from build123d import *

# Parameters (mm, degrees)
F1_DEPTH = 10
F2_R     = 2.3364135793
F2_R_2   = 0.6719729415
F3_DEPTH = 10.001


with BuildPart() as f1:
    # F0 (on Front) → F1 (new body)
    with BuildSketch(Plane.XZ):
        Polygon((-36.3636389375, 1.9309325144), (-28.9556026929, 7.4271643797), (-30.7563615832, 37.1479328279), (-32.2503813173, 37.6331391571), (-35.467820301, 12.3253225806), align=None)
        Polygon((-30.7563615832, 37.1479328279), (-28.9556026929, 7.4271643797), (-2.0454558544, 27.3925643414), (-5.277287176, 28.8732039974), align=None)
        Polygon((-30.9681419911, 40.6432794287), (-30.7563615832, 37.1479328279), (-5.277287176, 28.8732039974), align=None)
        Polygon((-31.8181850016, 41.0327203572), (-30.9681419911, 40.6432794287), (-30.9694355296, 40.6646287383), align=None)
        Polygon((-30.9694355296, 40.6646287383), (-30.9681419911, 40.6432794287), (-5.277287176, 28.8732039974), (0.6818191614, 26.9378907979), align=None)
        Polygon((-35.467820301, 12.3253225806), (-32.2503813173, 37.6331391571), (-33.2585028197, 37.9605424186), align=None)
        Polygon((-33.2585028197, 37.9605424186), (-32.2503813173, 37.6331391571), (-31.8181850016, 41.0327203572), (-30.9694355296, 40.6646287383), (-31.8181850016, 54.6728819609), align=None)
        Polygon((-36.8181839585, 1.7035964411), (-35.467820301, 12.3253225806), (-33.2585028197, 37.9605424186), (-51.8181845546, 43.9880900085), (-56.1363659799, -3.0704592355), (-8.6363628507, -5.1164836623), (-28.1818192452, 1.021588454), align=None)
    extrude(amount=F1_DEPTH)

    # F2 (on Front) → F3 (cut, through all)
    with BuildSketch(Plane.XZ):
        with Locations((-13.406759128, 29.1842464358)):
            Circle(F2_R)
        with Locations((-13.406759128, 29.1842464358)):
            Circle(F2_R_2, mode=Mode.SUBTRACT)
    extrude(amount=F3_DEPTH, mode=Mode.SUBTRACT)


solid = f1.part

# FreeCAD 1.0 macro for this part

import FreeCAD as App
import Part
import Sketcher

V = App.Vector

doc = App.newDocument("Part")
body = doc.addObject("PartDesign::Body", "Body")
body.AllowCompound = True

sketch1 = body.newObject("Sketcher::SketchObject", "Sketch")
sketch1.AttachmentSupport = (doc.getObject("XZ_Plane"), [""])
sketch1.MapMode = "FlatFace"
sketch1.addGeometry([
    Part.LineSegment(V(-36.4, 1.9, 0), V(-29, 7.4, 0)),
    Part.LineSegment(V(-29, 7.4, 0), V(-2, 27.4, 0)),
    Part.LineSegment(V(-2, 27.4, 0), V(-5.3, 28.9, 0)),
    Part.LineSegment(V(-5.3, 28.9, 0), V(0.7, 26.9, 0)),
    Part.LineSegment(V(0.7, 26.9, 0), V(-31, 40.7, 0)),
    Part.LineSegment(V(-31, 40.7, 0), V(-31.8, 54.7, 0)),
    Part.LineSegment(V(-31.8, 54.7, 0), V(-33.3, 38, 0)),
    Part.LineSegment(V(-33.3, 38, 0), V(-51.8, 44, 0)),
    Part.LineSegment(V(-51.8, 44, 0), V(-56.1, -3.1, 0)),
    Part.LineSegment(V(-56.1, -3.1, 0), V(-8.6, -5.1, 0)),
    Part.LineSegment(V(-8.6, -5.1, 0), V(-28.2, 1, 0)),
    Part.LineSegment(V(-28.2, 1, 0), V(-36.8, 1.7, 0)),
    Part.LineSegment(V(-36.8, 1.7, 0), V(-35.5, 12.3, 0)),
    Part.LineSegment(V(-35.5, 12.3, 0), V(-36.4, 1.9, 0)),
    Part.LineSegment(V(-31.8, 41, 0), V(-31, 40.6, 0)),
    Part.LineSegment(V(-31, 40.6, 0), V(-30.8, 37.1, 0)),
    Part.LineSegment(V(-30.8, 37.1, 0), V(-32.3, 37.6, 0)),
    Part.LineSegment(V(-32.3, 37.6, 0), V(-31.8, 41, 0)),
], False)
sketch1.addConstraint([
    Sketcher.Constraint("Coincident", 0, 2, 1, 1),
    Sketcher.Constraint("Coincident", 1, 2, 2, 1),
    Sketcher.Constraint("Coincident", 2, 2, 3, 1),
    Sketcher.Constraint("Coincident", 3, 2, 4, 1),
    Sketcher.Constraint("Coincident", 4, 2, 5, 1),
    Sketcher.Constraint("Coincident", 5, 2, 6, 1),
    Sketcher.Constraint("Coincident", 6, 2, 7, 1),
    Sketcher.Constraint("Coincident", 7, 2, 8, 1),
    Sketcher.Constraint("Coincident", 8, 2, 9, 1),
    Sketcher.Constraint("Coincident", 9, 2, 10, 1),
    Sketcher.Constraint("Coincident", 10, 2, 11, 1),
    Sketcher.Constraint("Coincident", 11, 2, 12, 1),
    Sketcher.Constraint("Coincident", 12, 2, 13, 1),
    Sketcher.Constraint("Coincident", 13, 2, 0, 1),
    Sketcher.Constraint("Coincident", 14, 2, 15, 1),
    Sketcher.Constraint("Coincident", 15, 2, 16, 1),
    Sketcher.Constraint("Coincident", 16, 2, 17, 1),
    Sketcher.Constraint("Coincident", 17, 2, 14, 1),
    Sketcher.Constraint("Parallel", 0, 1),
    Sketcher.Constraint("Parallel", 3, 7),
    Sketcher.Constraint("Parallel", 6, 13),
    Sketcher.Constraint("Parallel", 2, 14),
    Sketcher.Constraint("Parallel", 5, 15),
    Sketcher.Constraint("Parallel", 7, 16),
    Sketcher.Constraint("Parallel", 12, 17),
    Sketcher.Constraint("Vertical", 5, 2, 17, 2),
    Sketcher.Constraint("DistanceX", 7, 2, 5, 2, 20.0),
    Sketcher.Constraint("DistanceY", 8, 2, 6, 2, 41.031002),
    Sketcher.Constraint("DistanceX", 12, 2, 10, 2, 7.286001),
    Sketcher.Constraint("Distance", 10, 20.4866),
    Sketcher.Constraint("DistanceY", 0, 2, 1, 2, 19.9654),
    Sketcher.Constraint("DistanceX", 6, 2, 0, 2, 4.3029),
    Sketcher.Constraint("Distance", 1, 33.507808),
    Sketcher.Constraint("Distance", 2, 3.55486),
    Sketcher.Constraint("Distance", 3, 6.265492),
    Sketcher.Constraint("Distance", 4, 34.499641),
    Sketcher.Constraint("Distance", 6, 16.77429),
    Sketcher.Constraint("Distance", 7, 19.513921),
    Sketcher.Constraint("Distance", 9, 47.544048),
    Sketcher.Constraint("Distance", 11, 8.663252),
    Sketcher.Constraint("Distance", 12, 10.707219),
    Sketcher.Constraint("Distance", 13, 10.432921),
    Sketcher.Constraint("DistanceX", -1, 1, 3, 2, 0.681819),
    Sketcher.Constraint("DistanceY", -1, 1, 3, 2, 26.937891),
    Sketcher.Constraint("DistanceY", -1, 1, 4, 2, 40.664629),
    Sketcher.Constraint("DistanceY", -1, 1, 5, 2, 54.672882),
    Sketcher.Constraint("DistanceY", -1, 1, 7, 2, 43.98809),
    Sketcher.Constraint("DistanceX", 10, 2, -1, 1, 28.181819),
    Sketcher.Constraint("DistanceY", -1, 1, 10, 2, 1.021588),
    Sketcher.Constraint("DistanceX", 14, 2, -1, 1, 30.968142),
    Sketcher.Constraint("DistanceY", -1, 1, 14, 2, 40.643279),
    Sketcher.Constraint("DistanceX", 15, 2, -1, 1, 30.756362),
    Sketcher.Constraint("DistanceX", 16, 2, -1, 1, 32.250381),
    Sketcher.Constraint("DistanceX", 8, 2, 7, 2, 4.318181),
])
pad1 = body.newObject("PartDesign::Pad", "Pad")
pad1.Profile = sketch1
pad1.Length = 10

sketch2 = body.newObject("Sketcher::SketchObject", "Sketch001")
sketch2.AttachmentSupport = (doc.getObject("XZ_Plane"), [""])
sketch2.MapMode = "FlatFace"
sketch2.addGeometry([
    Part.Circle(V(-13.4, 29.2, 0), V(0, 0, 1), 2.3),
    Part.Circle(V(-13.4, 29.2, 0), V(0, 0, 1), 0.7),
], False)
sketch2.addConstraint([
    Sketcher.Constraint("Coincident", 1, 3, 0, 3),
    Sketcher.Constraint("Diameter", 0, 4.672827),
    Sketcher.Constraint("Diameter", 1, 1.343946),
    Sketcher.Constraint("DistanceX", 0, 3, -1, 1, 13.406759),
    Sketcher.Constraint("DistanceY", -1, 1, 0, 3, 29.184246),
])
pocket1 = body.newObject("PartDesign::Pocket", "Pocket")
pocket1.Profile = sketch2
pocket1.Type = "ThroughAll"
pocket1.Reversed = True

doc.recompute()
